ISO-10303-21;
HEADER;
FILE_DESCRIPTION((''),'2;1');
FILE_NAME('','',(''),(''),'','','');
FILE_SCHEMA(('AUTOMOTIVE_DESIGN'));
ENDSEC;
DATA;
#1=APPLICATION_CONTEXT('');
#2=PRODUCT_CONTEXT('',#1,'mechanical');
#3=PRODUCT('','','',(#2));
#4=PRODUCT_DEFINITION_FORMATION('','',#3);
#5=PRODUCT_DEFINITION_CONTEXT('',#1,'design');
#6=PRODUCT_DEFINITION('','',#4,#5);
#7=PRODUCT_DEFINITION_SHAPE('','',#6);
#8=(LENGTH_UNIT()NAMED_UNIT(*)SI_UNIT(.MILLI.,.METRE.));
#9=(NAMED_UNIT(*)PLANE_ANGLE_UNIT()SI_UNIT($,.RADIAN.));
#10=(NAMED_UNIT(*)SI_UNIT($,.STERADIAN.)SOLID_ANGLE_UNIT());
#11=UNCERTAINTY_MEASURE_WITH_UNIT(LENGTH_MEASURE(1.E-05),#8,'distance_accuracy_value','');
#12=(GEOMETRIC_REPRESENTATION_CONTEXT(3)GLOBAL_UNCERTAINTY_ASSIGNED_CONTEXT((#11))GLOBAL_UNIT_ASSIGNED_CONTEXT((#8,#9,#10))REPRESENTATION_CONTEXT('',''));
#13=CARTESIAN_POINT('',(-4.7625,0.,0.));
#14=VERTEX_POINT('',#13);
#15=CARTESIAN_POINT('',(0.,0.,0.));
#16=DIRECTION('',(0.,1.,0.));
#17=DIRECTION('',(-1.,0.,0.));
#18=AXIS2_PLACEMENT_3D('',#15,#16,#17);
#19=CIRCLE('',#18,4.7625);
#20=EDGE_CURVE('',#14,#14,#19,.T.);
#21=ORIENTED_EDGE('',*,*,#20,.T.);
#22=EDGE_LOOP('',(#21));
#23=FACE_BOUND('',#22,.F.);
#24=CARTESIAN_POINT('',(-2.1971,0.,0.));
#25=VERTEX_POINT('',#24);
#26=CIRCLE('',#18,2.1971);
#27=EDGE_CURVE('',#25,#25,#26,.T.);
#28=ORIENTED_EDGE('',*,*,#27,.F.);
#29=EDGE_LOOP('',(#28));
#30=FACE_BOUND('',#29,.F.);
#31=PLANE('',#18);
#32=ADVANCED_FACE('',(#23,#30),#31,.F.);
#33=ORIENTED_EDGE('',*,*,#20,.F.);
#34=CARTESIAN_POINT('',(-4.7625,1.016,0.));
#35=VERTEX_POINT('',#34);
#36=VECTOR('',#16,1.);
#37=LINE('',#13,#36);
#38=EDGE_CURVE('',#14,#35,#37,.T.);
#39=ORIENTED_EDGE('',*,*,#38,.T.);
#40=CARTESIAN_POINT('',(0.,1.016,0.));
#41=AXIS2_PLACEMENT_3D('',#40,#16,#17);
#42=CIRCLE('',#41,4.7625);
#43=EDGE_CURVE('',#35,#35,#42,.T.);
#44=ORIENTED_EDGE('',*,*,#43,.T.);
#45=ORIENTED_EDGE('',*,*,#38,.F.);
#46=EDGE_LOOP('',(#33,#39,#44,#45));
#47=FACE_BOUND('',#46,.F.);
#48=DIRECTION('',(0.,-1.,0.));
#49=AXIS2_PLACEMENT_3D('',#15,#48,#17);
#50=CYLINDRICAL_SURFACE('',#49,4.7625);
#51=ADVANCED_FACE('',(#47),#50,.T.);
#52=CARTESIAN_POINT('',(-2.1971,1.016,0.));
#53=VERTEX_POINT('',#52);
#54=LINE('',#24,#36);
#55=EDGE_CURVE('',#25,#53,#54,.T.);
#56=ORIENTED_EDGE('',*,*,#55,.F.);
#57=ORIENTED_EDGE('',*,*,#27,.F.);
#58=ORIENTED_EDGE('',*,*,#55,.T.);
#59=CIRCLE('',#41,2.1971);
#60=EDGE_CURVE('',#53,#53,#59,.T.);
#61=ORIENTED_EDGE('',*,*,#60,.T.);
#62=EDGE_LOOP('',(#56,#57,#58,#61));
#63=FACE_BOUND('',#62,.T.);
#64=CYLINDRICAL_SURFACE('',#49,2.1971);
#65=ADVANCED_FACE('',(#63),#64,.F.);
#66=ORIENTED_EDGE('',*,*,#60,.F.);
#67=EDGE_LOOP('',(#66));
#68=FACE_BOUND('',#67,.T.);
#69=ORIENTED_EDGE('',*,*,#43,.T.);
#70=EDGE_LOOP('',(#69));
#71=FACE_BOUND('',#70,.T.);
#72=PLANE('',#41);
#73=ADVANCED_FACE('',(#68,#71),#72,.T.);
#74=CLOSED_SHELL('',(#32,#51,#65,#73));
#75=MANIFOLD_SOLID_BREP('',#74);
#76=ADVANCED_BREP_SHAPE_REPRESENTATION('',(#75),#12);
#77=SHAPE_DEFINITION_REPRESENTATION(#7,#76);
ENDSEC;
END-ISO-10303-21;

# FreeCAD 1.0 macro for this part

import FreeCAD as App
import Part
import Sketcher

V = App.Vector
Q = App.Units.Quantity

doc = App.newDocument("Part")
body = doc.addObject("PartDesign::Body", "Body")

# Sketch on XZ plane
sketch1 = body.newObject("Sketcher::SketchObject", "Sketch")
sketch1.AttachmentSupport = (doc.getObject("XZ_Plane"), [""])
sketch1.MapMode = "FlatFace"
sketch1.addGeometry([
    Part.Circle(V(0, 0, 0), V(0, 0, 1), 4.8),
    Part.Circle(V(0, 0, 0), V(0, 0, 1), 2.2),
], False)
sketch1.addConstraint([
    Sketcher.Constraint("Coincident", 0, 3, -1, 1),
    Sketcher.Constraint("Coincident", 1, 3, -1, 1),
    Sketcher.Constraint("Diameter", 0, Q("0.375 in")),
    Sketcher.Constraint("Diameter", 1, Q("0.173 in")),
])
pad1 = body.newObject("PartDesign::Pad", "Pad")
pad1.Profile = sketch1
pad1.Length = Q("0.04 in")
pad1.Reversed = True

doc.recompute()
